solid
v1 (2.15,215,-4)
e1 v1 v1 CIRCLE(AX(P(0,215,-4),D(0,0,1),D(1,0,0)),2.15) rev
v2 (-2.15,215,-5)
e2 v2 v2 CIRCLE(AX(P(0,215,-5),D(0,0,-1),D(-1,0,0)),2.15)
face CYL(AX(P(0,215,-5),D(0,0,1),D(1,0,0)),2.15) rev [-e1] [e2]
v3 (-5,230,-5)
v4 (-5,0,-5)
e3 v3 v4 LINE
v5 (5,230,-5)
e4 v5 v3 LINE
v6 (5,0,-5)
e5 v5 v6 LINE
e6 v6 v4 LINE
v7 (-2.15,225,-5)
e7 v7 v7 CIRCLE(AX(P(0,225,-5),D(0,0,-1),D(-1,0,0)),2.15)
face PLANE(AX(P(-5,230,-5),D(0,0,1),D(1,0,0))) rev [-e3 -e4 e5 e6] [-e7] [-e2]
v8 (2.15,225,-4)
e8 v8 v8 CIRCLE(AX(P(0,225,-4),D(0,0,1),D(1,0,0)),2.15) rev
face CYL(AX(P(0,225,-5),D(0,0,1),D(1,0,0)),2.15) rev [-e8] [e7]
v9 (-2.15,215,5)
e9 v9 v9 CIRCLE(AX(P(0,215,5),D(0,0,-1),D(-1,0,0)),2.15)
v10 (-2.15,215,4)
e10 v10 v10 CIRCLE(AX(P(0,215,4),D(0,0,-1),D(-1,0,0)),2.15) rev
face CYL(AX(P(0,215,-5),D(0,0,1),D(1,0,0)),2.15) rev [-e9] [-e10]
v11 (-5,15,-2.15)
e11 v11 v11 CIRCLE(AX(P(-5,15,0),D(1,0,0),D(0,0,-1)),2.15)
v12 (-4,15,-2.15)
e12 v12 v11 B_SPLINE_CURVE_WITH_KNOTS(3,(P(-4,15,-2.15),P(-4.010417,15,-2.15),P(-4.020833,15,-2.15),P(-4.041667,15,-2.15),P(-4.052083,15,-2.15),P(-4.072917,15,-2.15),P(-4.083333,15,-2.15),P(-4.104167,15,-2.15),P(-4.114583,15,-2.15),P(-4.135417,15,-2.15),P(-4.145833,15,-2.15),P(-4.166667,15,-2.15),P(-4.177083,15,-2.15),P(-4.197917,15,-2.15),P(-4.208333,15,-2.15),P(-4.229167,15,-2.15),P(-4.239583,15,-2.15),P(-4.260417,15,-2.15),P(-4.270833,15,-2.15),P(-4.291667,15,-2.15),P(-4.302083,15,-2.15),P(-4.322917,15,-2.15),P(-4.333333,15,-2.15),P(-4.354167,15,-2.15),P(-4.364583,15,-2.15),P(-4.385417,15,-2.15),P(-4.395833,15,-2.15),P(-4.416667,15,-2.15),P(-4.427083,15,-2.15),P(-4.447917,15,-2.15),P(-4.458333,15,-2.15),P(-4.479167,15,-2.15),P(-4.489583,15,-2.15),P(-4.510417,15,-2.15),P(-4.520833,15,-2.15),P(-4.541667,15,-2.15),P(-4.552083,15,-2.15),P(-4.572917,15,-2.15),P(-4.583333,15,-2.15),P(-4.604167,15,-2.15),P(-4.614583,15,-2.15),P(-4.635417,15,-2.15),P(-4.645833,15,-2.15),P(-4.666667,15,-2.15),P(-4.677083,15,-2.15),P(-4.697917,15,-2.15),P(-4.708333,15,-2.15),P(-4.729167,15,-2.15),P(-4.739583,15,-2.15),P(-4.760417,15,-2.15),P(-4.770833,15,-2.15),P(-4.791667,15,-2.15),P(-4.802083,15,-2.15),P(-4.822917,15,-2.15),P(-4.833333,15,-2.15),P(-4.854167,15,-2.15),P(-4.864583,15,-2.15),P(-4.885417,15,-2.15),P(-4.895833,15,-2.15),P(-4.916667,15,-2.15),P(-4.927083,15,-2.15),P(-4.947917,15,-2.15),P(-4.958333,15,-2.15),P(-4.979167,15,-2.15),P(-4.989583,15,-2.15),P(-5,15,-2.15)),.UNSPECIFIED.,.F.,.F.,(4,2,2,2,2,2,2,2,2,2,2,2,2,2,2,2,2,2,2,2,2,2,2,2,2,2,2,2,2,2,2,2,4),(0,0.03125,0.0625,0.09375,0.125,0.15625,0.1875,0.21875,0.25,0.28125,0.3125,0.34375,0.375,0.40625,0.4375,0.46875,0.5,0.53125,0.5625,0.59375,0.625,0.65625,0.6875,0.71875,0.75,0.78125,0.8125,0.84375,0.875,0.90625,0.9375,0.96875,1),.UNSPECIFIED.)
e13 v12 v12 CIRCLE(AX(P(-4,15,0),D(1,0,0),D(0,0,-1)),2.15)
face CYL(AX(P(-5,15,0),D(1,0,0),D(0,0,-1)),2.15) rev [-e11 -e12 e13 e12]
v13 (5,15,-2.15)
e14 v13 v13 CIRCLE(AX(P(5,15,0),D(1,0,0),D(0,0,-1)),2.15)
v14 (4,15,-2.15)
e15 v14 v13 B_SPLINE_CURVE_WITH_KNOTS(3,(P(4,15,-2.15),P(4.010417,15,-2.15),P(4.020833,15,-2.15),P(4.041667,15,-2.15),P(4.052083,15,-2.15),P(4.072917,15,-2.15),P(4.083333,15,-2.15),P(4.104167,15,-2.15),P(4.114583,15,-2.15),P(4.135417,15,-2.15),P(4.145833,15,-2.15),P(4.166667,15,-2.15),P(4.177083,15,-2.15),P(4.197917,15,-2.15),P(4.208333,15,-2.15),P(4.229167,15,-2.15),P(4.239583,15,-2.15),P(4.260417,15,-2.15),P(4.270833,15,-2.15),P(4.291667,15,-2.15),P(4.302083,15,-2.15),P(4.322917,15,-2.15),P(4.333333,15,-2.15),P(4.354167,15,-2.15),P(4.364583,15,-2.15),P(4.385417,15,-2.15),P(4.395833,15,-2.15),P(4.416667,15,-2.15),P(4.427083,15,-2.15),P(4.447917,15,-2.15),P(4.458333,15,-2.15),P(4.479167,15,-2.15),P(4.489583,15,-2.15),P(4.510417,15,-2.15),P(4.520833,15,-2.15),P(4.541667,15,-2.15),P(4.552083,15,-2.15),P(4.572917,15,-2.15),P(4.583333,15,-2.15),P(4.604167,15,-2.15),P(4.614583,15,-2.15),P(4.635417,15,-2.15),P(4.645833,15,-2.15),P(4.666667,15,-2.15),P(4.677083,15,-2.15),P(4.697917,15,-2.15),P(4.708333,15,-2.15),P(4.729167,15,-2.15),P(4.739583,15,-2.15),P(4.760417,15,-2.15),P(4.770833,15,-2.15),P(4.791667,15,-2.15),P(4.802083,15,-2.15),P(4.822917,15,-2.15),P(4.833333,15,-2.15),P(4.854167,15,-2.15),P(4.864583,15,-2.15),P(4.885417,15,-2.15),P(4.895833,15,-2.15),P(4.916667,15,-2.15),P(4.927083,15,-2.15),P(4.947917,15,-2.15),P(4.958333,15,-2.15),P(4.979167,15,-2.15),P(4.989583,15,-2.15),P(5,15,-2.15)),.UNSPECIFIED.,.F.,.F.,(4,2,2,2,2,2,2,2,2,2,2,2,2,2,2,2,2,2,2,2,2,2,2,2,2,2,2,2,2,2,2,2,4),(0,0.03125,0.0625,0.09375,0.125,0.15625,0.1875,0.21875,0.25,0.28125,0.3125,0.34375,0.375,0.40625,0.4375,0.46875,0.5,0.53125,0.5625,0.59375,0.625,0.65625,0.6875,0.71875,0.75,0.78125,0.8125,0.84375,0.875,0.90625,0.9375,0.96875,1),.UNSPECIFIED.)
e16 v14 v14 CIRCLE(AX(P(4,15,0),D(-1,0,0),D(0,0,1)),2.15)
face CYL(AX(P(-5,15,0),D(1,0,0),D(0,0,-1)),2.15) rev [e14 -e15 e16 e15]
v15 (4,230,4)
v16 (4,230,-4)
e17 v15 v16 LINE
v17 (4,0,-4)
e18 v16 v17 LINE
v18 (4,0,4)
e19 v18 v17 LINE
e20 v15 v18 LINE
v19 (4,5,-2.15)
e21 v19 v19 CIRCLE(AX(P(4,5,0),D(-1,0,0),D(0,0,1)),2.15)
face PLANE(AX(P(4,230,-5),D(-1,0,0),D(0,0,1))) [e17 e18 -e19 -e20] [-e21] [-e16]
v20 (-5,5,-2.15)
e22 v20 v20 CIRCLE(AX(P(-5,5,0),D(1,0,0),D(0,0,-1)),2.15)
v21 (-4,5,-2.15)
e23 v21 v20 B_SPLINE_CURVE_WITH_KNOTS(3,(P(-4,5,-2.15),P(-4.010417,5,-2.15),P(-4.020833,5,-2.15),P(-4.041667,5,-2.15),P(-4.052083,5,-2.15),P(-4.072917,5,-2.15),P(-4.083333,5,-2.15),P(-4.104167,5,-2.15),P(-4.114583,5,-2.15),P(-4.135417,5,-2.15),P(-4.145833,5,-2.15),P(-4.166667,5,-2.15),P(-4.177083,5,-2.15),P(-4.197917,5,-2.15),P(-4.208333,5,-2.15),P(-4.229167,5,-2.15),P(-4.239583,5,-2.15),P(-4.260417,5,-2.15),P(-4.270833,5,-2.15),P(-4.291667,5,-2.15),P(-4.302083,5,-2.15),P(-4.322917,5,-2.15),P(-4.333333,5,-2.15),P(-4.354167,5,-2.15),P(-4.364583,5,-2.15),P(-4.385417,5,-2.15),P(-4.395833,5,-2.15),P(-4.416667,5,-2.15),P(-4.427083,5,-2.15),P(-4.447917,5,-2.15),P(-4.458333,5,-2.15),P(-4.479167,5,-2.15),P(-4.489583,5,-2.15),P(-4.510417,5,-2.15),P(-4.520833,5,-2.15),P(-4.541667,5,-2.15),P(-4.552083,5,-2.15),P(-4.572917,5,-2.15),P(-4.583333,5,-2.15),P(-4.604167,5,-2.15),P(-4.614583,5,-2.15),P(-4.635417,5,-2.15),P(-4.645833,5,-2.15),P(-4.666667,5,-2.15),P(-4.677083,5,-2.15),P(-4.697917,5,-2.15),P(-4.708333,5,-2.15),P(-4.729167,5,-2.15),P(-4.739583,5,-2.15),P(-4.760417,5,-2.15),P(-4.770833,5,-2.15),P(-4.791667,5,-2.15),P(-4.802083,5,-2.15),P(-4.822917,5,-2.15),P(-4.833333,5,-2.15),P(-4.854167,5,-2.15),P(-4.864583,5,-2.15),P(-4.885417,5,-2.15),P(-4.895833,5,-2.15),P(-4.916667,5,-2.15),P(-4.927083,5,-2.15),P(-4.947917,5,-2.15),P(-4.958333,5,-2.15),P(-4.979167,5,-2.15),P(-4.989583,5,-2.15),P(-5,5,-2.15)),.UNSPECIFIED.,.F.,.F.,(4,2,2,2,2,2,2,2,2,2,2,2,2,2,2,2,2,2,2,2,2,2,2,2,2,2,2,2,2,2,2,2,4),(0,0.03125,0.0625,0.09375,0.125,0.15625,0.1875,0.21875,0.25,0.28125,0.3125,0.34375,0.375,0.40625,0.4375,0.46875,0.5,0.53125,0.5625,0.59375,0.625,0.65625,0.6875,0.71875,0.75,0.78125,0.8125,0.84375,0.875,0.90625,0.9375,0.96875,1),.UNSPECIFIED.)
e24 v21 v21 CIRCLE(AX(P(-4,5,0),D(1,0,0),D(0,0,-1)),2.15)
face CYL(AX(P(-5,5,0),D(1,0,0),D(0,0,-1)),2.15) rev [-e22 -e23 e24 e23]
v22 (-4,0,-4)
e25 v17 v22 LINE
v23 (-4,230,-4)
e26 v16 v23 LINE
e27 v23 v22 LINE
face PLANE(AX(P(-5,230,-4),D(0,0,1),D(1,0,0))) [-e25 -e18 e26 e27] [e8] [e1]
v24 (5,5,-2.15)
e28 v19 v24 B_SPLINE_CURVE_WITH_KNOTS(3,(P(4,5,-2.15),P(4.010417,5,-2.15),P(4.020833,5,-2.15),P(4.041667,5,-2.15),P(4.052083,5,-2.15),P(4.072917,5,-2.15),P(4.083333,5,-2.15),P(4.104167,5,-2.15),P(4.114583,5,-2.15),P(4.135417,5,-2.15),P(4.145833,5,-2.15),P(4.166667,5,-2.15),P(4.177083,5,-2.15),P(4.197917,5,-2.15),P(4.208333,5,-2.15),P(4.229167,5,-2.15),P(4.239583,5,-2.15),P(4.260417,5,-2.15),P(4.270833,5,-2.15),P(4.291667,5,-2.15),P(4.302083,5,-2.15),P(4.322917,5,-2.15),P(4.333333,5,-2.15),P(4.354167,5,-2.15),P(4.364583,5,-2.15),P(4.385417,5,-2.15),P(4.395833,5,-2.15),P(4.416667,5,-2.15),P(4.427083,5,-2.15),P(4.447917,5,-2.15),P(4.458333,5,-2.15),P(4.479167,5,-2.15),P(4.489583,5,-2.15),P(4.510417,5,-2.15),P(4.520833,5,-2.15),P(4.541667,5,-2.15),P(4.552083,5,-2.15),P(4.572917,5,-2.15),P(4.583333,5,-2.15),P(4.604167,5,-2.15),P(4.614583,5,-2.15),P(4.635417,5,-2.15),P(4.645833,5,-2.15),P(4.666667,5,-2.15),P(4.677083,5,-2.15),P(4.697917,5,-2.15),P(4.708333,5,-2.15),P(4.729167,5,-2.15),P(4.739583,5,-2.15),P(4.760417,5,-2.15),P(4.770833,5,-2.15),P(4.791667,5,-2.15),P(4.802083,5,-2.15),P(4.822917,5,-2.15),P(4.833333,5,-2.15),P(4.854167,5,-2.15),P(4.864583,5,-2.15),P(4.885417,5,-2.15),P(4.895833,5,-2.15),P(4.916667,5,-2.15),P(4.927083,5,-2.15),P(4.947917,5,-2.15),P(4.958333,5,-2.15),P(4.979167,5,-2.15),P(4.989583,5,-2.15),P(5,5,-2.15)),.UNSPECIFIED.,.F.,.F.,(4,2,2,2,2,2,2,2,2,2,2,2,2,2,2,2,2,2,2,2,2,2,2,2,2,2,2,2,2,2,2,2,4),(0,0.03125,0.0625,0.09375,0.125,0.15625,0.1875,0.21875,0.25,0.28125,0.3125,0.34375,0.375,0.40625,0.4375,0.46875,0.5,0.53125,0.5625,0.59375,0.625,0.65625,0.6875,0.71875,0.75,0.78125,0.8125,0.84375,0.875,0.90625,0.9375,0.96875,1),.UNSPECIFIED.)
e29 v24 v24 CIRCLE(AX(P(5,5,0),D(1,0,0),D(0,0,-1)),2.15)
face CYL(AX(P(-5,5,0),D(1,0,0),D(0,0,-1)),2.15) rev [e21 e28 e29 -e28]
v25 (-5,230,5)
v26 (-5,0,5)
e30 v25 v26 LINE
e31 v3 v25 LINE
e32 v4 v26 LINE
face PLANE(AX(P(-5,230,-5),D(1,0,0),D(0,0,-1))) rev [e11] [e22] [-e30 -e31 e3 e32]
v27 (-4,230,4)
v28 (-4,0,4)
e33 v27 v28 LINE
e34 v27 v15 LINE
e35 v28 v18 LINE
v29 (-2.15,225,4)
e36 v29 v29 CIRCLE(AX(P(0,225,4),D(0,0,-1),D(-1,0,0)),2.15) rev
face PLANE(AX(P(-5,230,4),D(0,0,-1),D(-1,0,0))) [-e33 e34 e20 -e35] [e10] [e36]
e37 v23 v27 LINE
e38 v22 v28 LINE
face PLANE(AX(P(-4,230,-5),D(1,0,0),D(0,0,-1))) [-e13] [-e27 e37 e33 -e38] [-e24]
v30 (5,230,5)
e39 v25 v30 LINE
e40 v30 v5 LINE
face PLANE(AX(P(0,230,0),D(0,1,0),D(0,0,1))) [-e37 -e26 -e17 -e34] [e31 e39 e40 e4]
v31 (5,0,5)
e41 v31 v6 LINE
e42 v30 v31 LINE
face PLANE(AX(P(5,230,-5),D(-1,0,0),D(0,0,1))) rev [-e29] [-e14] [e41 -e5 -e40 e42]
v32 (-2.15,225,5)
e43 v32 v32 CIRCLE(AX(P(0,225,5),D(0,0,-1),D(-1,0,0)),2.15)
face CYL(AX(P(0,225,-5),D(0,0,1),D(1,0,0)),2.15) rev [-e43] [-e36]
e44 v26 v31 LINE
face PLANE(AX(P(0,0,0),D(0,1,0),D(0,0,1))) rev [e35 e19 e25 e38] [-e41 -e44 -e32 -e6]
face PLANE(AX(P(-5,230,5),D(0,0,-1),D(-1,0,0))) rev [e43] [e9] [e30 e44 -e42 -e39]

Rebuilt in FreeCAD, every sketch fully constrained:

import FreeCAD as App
import Part
import Sketcher
from FreeCAD import Vector

doc = App.newDocument("Part")
body = doc.addObject("PartDesign::Body", "Body")

# Sketch on XZ plane
sketch1 = body.newObject("Sketcher::SketchObject", "Sketch")
sketch1.AttachmentSupport = (doc.getObject("XZ_Plane"), [""])
sketch1.MapMode = "FlatFace"
sketch1.addGeometry([
    Part.LineSegment(Vector(-5, -5, 0), Vector(-5, 5, 0)),  # 0
    Part.LineSegment(Vector(-5, 5, 0), Vector(5, 5, 0)),  # 1
    Part.LineSegment(Vector(5, 5, 0), Vector(5, -5, 0)),  # 2
    Part.LineSegment(Vector(5, -5, 0), Vector(-5, -5, 0)),  # 3
    Part.LineSegment(Vector(4, 4, 0), Vector(-4, 4, 0)),  # 4
    Part.LineSegment(Vector(-4, 4, 0), Vector(-4, -4, 0)),  # 5
    Part.LineSegment(Vector(-4, -4, 0), Vector(4, -4, 0)),  # 6
    Part.LineSegment(Vector(4, -4, 0), Vector(4, 4, 0)),  # 7
], False)
sketch1.addConstraint([
    Sketcher.Constraint("Coincident", 0, 2, 1, 1),
    Sketcher.Constraint("Coincident", 1, 2, 2, 1),
    Sketcher.Constraint("Coincident", 2, 2, 3, 1),
    Sketcher.Constraint("Coincident", 3, 2, 0, 1),
    Sketcher.Constraint("Coincident", 4, 2, 5, 1),
    Sketcher.Constraint("Coincident", 5, 2, 6, 1),
    Sketcher.Constraint("Coincident", 6, 2, 7, 1),
    Sketcher.Constraint("Coincident", 7, 2, 4, 1),
    Sketcher.Constraint("Vertical", 0),
    Sketcher.Constraint("Horizontal", 1),
    Sketcher.Constraint("Vertical", 2),
    Sketcher.Constraint("Horizontal", 3),
    Sketcher.Constraint("Horizontal", 4),
    Sketcher.Constraint("Vertical", 5),
    Sketcher.Constraint("Horizontal", 6),
    Sketcher.Constraint("Vertical", 7),
    Sketcher.Constraint("Symmetric", 0, 2, 2, 2, -1, 1),
    Sketcher.Constraint("Symmetric", 4, 2, 6, 2, -1, 1),
    Sketcher.Constraint("Equal", 3, 0),
    Sketcher.Constraint("Equal", 6, 5),
    Sketcher.Constraint("DistanceX", 1, 1, 1, 2, 10.0),
    Sketcher.Constraint("DistanceX", 4, 2, 4, 1, 8.0),
])
pad1 = body.newObject("PartDesign::Pad", "Pad")
pad1.Profile = sketch1
pad1.Length = 230
pad1.Reversed = True

# Sketch on XY plane
sketch2 = body.newObject("Sketcher::SketchObject", "Sketch001")
sketch2.AttachmentSupport = (doc.getObject("XY_Plane"), [""])
sketch2.MapMode = "FlatFace"
sketch2.AttachmentOffset = App.Placement(Vector(0, 0, 5), App.Rotation())
sketch2.addGeometry([
    Part.Circle(Vector(0, 215, 0), Vector(0, 0, 1), 2.1),
    Part.Circle(Vector(0, 225, 0), Vector(0, 0, 1), 2.1),
], False)
sketch2.addConstraint([
    Sketcher.Constraint("Equal", 0, 1),
    Sketcher.Constraint("PointOnObject", 0, 3, -2),
    Sketcher.Constraint("PointOnObject", 1, 3, -2),
    Sketcher.Constraint("Diameter", 0, 4.3),
    Sketcher.Constraint("DistanceY", -1, 1, 0, 3, 215.0),
    Sketcher.Constraint("DistanceY", -1, 1, 1, 3, 225.0),
])
pocket1 = body.newObject("PartDesign::Pocket", "Pocket")
pocket1.Profile = sketch2
pocket1.Type = "ThroughAll"

# Sketch on YZ plane
sketch3 = body.newObject("Sketcher::SketchObject", "Sketch002")
sketch3.AttachmentSupport = (doc.getObject("YZ_Plane"), [""])
sketch3.MapMode = "FlatFace"
sketch3.AttachmentOffset = App.Placement(Vector(0, 0, 5), App.Rotation())
sketch3.addGeometry([
    Part.Circle(Vector(15, 0, 0), Vector(0, 0, 1), 2.1),
    Part.Circle(Vector(5, 0, 0), Vector(0, 0, 1), 2.1),
], False)
sketch3.addConstraint([
    Sketcher.Constraint("Equal", 0, 1),
    Sketcher.Constraint("PointOnObject", 0, 3, -1),
    Sketcher.Constraint("PointOnObject", 1, 3, -1),
    Sketcher.Constraint("Diameter", 0, 4.3),
    Sketcher.Constraint("DistanceX", -1, 1, 0, 3, 15.0),
    Sketcher.Constraint("DistanceX", -1, 1, 1, 3, 5.0),
])
pocket2 = body.newObject("PartDesign::Pocket", "Pocket001")
pocket2.Profile = sketch3
pocket2.Type = "ThroughAll"

doc.recompute()
